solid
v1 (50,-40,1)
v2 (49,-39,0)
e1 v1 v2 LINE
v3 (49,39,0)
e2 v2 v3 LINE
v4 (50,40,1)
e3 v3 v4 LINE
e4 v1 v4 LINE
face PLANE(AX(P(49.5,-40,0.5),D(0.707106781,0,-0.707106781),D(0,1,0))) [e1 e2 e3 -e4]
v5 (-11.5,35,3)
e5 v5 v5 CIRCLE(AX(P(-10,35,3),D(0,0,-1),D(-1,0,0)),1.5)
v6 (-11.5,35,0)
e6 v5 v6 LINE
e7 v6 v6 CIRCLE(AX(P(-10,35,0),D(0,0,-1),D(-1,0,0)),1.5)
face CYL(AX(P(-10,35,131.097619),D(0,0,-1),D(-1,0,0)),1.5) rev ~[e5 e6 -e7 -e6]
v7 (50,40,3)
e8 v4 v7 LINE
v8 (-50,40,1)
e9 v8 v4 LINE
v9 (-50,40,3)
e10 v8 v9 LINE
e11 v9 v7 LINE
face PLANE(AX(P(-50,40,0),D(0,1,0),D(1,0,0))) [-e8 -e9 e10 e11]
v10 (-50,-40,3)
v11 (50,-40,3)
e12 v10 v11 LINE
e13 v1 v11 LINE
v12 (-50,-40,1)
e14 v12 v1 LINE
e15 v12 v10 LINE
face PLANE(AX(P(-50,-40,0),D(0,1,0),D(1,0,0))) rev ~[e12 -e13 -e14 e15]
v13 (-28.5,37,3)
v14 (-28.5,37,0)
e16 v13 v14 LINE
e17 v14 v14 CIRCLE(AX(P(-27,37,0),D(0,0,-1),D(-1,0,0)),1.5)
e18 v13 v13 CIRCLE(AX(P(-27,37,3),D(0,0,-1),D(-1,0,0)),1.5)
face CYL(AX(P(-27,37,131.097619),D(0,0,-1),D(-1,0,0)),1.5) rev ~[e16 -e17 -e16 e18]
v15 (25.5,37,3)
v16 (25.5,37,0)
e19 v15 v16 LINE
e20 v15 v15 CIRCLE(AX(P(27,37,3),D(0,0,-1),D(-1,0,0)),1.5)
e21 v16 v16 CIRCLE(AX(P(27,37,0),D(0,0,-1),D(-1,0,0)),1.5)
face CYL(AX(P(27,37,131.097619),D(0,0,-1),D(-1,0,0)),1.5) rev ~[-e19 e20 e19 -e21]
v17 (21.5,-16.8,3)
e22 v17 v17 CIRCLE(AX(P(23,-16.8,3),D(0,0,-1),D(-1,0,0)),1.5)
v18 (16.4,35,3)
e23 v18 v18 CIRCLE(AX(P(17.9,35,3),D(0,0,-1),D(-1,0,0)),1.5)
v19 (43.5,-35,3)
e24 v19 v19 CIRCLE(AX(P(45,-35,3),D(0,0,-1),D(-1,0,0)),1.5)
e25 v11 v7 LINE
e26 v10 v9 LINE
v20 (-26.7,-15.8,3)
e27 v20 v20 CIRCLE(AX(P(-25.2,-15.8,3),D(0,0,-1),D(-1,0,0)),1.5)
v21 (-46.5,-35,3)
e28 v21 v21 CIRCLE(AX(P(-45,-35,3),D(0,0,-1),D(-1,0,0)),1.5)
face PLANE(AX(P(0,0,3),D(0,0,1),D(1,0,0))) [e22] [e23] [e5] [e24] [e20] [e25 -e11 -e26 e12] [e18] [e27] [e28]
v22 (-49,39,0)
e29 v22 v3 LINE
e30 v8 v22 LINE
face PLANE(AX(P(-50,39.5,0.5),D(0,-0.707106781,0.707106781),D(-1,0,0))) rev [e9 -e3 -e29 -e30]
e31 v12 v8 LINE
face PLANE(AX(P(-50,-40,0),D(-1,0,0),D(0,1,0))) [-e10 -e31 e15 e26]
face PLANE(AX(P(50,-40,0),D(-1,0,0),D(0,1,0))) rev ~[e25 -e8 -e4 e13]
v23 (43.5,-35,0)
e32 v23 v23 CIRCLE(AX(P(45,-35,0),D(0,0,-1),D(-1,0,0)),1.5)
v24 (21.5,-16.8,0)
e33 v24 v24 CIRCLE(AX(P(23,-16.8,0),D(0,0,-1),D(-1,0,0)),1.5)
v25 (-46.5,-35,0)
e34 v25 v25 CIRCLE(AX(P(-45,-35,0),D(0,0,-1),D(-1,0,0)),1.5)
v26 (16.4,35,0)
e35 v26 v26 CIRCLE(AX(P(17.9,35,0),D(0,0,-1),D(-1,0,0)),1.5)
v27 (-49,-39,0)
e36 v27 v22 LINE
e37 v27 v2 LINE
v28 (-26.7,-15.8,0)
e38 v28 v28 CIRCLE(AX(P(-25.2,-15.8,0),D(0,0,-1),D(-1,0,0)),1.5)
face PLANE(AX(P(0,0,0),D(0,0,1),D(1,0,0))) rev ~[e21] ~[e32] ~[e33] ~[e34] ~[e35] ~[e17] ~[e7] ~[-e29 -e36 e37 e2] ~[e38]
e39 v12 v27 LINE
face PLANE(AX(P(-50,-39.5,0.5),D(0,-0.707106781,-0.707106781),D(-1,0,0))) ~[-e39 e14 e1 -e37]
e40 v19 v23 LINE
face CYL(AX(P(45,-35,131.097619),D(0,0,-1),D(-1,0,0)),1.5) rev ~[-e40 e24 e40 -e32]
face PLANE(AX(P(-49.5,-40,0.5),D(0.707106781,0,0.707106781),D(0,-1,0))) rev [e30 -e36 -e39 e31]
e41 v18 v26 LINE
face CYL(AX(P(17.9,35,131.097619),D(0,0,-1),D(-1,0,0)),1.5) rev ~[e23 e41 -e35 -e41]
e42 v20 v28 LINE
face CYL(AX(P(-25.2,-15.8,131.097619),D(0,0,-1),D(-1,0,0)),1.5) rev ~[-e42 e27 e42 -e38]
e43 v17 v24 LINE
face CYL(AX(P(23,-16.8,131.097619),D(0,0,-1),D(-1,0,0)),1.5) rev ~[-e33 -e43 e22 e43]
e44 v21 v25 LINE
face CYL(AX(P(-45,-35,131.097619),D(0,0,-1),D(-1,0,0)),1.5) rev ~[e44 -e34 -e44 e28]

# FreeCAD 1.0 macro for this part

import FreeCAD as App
import Part
import Sketcher
from FreeCAD import Vector


def edges_at(feature, points):
    """Names of the edges that pass closest to the given points."""
    edges = feature.Shape.Edges
    near = lambda p: min(range(len(edges)), key=lambda i: edges[i].distToShape(Part.Vertex(*p))[0])
    return sorted({f"Edge{near(p) + 1}" for p in points})

doc = App.newDocument("Part")
params = doc.addObject("Spreadsheet::Sheet", "Params")
for row, (alias, value) in enumerate([
    ("sketch1_width", "100 mm"),
    ("sketch1_height", "80 mm"),
    ("pad1_length", "3 mm"),
    ("sketch2_diameter", "3 mm"),
    ("hole_diameter", "3 mm"),
    ("chamfer_size", "1 mm"),
    ("sketch3_diameter", "3 mm"),
    ("hole2_diameter", "3 mm"),
], start=1):
    params.set(f"A{row}", alias)
    params.set(f"B{row}", "=" + value)
    params.setAlias(f"B{row}", alias)

body = doc.addObject("PartDesign::Body", "Body")

sketch1 = body.newObject("Sketcher::SketchObject", "Sketch")
sketch1.AttachmentSupport = (doc.getObject("XY_Plane"), [""])
sketch1.MapMode = "FlatFace"
sketch1.addGeometry(Part.LineSegment(Vector(-50, 40, 0), Vector(-50, -40, 0)), False)
sketch1.addGeometry(Part.LineSegment(Vector(-50, -40, 0), Vector(50, -40, 0)), False)
sketch1.addGeometry(Part.LineSegment(Vector(50, -40, 0), Vector(50, 40, 0)), False)
sketch1.addGeometry(Part.LineSegment(Vector(50, 40, 0), Vector(-50, 40, 0)), False)
sketch1.addConstraint(Sketcher.Constraint("Coincident", 0, 2, 1, 1))
sketch1.addConstraint(Sketcher.Constraint("Coincident", 1, 2, 2, 1))
sketch1.addConstraint(Sketcher.Constraint("Coincident", 2, 2, 3, 1))
sketch1.addConstraint(Sketcher.Constraint("Coincident", 3, 2, 0, 1))
sketch1.addConstraint(Sketcher.Constraint("Vertical", 0))
sketch1.addConstraint(Sketcher.Constraint("Horizontal", 1))
sketch1.addConstraint(Sketcher.Constraint("Vertical", 2))
sketch1.addConstraint(Sketcher.Constraint("Horizontal", 3))
sketch1.addConstraint(Sketcher.Constraint("Symmetric", 0, 2, 2, 2, -1, 1))
sketch1.addConstraint(Sketcher.Constraint("DistanceX", 1, 1, 1, 2, 100.0))
sketch1.addConstraint(Sketcher.Constraint("DistanceY", 0, 2, 0, 1, 80.0))
sketch1.setExpression("Constraints[9]", "Params.sketch1_width")
sketch1.setExpression("Constraints[10]", "Params.sketch1_height")
pad1 = body.newObject("PartDesign::Pad", "Pad")
pad1.Profile = sketch1
pad1.setExpression("Length", "Params.pad1_length")

sketch2 = body.newObject("Sketcher::SketchObject", "Sketch001")
sketch2.AttachmentSupport = (doc.getObject("XY_Plane"), [""])
sketch2.MapMode = "FlatFace"
sketch2.AttachmentOffset = App.Placement(Vector(0, 0, 3), App.Rotation())
sketch2.addGeometry(Part.Circle(Vector(-10, 35, 0), Vector(0, 0, 1), 1.5), False)
sketch2.addGeometry(Part.Circle(Vector(17.9, 35, 0), Vector(0, 0, 1), 1.5), False)
sketch2.addGeometry(Part.Circle(Vector(23, -16.8, 0), Vector(0, 0, 1), 1.5), False)
sketch2.addGeometry(Part.Circle(Vector(-25.2, -15.8, 0), Vector(0, 0, 1), 1.5), False)
sketch2.addConstraint(Sketcher.Constraint("Equal", 0, 1))
sketch2.addConstraint(Sketcher.Constraint("Equal", 1, 2))
sketch2.addConstraint(Sketcher.Constraint("Equal", 2, 3))
sketch2.addConstraint(Sketcher.Constraint("Horizontal", 0, 3, 1, 3))
sketch2.addConstraint(Sketcher.Constraint("Diameter", 0, 3.0))
sketch2.addConstraint(Sketcher.Constraint("DistanceX", 0, 3, -1, 1, 10.0))
sketch2.addConstraint(Sketcher.Constraint("DistanceY", -1, 1, 0, 3, 35.0))
sketch2.addConstraint(Sketcher.Constraint("DistanceX", -1, 1, 2, 3, 23.0))
sketch2.addConstraint(Sketcher.Constraint("DistanceY", 2, 3, 3, 3, 1.0))
sketch2.addConstraint(Sketcher.Constraint("DistanceX", -1, 1, 1, 3, 17.9))
sketch2.addConstraint(Sketcher.Constraint("DistanceY", 2, 3, -1, 1, 16.8))
sketch2.addConstraint(Sketcher.Constraint("DistanceX", 3, 3, -1, 1, 25.2))
sketch2.setExpression("Constraints[4]", "Params.sketch2_diameter")
doc.recompute()
hole = body.newObject("PartDesign::Hole", "Hole")
hole.Profile = sketch2
hole.ThreadType = "None"
hole.setExpression("Diameter", "Params.hole_diameter")
hole.DepthType = "ThroughAll"
doc.recompute()

chamfer = body.newObject("PartDesign::Chamfer", "Chamfer")
chamfer.Base = (hole, edges_at(hole, [
    (0, -40, 0),
    (-50, 0, 0),
    (50, 0, 0),
    (0, 40, 0),
]))
chamfer.setExpression("Size", "Params.chamfer_size")

sketch3 = body.newObject("Sketcher::SketchObject", "Sketch002")
sketch3.AttachmentSupport = (doc.getObject("XY_Plane"), [""])
sketch3.MapMode = "FlatFace"
sketch3.AttachmentOffset = App.Placement(Vector(0, 0, 3), App.Rotation())
sketch3.addGeometry(Part.Circle(Vector(-45, -35, 0), Vector(0, 0, 1), 1.5), False)
sketch3.addGeometry(Part.Circle(Vector(-27, 37, 0), Vector(0, 0, 1), 1.5), False)
sketch3.addGeometry(Part.Circle(Vector(27, 37, 0), Vector(0, 0, 1), 1.5), False)
sketch3.addGeometry(Part.Circle(Vector(45, -35, 0), Vector(0, 0, 1), 1.5), False)
sketch3.addConstraint(Sketcher.Constraint("Equal", 0, 1))
sketch3.addConstraint(Sketcher.Constraint("Equal", 1, 2))
sketch3.addConstraint(Sketcher.Constraint("Equal", 2, 3))
sketch3.addConstraint(Sketcher.Constraint("Symmetric", 1, 3, 2, 3, -2))
sketch3.addConstraint(Sketcher.Constraint("Symmetric", 0, 3, 3, 3, -2))
sketch3.addConstraint(Sketcher.Constraint("Diameter", 0, 3.0))
sketch3.addConstraint(Sketcher.Constraint("DistanceX", 0, 3, -1, 1, 45.0))
sketch3.addConstraint(Sketcher.Constraint("DistanceY", 0, 3, -1, 1, 35.0))
sketch3.addConstraint(Sketcher.Constraint("DistanceX", 1, 3, -1, 1, 27.0))
sketch3.addConstraint(Sketcher.Constraint("DistanceY", -1, 1, 1, 3, 37.0))
sketch3.setExpression("Constraints[5]", "Params.sketch3_diameter")
doc.recompute()
hole2 = body.newObject("PartDesign::Hole", "Hole001")
hole2.Profile = sketch3
hole2.ThreadType = "None"
hole2.setExpression("Diameter", "Params.hole2_diameter")
hole2.DepthType = "ThroughAll"

doc.recompute()
